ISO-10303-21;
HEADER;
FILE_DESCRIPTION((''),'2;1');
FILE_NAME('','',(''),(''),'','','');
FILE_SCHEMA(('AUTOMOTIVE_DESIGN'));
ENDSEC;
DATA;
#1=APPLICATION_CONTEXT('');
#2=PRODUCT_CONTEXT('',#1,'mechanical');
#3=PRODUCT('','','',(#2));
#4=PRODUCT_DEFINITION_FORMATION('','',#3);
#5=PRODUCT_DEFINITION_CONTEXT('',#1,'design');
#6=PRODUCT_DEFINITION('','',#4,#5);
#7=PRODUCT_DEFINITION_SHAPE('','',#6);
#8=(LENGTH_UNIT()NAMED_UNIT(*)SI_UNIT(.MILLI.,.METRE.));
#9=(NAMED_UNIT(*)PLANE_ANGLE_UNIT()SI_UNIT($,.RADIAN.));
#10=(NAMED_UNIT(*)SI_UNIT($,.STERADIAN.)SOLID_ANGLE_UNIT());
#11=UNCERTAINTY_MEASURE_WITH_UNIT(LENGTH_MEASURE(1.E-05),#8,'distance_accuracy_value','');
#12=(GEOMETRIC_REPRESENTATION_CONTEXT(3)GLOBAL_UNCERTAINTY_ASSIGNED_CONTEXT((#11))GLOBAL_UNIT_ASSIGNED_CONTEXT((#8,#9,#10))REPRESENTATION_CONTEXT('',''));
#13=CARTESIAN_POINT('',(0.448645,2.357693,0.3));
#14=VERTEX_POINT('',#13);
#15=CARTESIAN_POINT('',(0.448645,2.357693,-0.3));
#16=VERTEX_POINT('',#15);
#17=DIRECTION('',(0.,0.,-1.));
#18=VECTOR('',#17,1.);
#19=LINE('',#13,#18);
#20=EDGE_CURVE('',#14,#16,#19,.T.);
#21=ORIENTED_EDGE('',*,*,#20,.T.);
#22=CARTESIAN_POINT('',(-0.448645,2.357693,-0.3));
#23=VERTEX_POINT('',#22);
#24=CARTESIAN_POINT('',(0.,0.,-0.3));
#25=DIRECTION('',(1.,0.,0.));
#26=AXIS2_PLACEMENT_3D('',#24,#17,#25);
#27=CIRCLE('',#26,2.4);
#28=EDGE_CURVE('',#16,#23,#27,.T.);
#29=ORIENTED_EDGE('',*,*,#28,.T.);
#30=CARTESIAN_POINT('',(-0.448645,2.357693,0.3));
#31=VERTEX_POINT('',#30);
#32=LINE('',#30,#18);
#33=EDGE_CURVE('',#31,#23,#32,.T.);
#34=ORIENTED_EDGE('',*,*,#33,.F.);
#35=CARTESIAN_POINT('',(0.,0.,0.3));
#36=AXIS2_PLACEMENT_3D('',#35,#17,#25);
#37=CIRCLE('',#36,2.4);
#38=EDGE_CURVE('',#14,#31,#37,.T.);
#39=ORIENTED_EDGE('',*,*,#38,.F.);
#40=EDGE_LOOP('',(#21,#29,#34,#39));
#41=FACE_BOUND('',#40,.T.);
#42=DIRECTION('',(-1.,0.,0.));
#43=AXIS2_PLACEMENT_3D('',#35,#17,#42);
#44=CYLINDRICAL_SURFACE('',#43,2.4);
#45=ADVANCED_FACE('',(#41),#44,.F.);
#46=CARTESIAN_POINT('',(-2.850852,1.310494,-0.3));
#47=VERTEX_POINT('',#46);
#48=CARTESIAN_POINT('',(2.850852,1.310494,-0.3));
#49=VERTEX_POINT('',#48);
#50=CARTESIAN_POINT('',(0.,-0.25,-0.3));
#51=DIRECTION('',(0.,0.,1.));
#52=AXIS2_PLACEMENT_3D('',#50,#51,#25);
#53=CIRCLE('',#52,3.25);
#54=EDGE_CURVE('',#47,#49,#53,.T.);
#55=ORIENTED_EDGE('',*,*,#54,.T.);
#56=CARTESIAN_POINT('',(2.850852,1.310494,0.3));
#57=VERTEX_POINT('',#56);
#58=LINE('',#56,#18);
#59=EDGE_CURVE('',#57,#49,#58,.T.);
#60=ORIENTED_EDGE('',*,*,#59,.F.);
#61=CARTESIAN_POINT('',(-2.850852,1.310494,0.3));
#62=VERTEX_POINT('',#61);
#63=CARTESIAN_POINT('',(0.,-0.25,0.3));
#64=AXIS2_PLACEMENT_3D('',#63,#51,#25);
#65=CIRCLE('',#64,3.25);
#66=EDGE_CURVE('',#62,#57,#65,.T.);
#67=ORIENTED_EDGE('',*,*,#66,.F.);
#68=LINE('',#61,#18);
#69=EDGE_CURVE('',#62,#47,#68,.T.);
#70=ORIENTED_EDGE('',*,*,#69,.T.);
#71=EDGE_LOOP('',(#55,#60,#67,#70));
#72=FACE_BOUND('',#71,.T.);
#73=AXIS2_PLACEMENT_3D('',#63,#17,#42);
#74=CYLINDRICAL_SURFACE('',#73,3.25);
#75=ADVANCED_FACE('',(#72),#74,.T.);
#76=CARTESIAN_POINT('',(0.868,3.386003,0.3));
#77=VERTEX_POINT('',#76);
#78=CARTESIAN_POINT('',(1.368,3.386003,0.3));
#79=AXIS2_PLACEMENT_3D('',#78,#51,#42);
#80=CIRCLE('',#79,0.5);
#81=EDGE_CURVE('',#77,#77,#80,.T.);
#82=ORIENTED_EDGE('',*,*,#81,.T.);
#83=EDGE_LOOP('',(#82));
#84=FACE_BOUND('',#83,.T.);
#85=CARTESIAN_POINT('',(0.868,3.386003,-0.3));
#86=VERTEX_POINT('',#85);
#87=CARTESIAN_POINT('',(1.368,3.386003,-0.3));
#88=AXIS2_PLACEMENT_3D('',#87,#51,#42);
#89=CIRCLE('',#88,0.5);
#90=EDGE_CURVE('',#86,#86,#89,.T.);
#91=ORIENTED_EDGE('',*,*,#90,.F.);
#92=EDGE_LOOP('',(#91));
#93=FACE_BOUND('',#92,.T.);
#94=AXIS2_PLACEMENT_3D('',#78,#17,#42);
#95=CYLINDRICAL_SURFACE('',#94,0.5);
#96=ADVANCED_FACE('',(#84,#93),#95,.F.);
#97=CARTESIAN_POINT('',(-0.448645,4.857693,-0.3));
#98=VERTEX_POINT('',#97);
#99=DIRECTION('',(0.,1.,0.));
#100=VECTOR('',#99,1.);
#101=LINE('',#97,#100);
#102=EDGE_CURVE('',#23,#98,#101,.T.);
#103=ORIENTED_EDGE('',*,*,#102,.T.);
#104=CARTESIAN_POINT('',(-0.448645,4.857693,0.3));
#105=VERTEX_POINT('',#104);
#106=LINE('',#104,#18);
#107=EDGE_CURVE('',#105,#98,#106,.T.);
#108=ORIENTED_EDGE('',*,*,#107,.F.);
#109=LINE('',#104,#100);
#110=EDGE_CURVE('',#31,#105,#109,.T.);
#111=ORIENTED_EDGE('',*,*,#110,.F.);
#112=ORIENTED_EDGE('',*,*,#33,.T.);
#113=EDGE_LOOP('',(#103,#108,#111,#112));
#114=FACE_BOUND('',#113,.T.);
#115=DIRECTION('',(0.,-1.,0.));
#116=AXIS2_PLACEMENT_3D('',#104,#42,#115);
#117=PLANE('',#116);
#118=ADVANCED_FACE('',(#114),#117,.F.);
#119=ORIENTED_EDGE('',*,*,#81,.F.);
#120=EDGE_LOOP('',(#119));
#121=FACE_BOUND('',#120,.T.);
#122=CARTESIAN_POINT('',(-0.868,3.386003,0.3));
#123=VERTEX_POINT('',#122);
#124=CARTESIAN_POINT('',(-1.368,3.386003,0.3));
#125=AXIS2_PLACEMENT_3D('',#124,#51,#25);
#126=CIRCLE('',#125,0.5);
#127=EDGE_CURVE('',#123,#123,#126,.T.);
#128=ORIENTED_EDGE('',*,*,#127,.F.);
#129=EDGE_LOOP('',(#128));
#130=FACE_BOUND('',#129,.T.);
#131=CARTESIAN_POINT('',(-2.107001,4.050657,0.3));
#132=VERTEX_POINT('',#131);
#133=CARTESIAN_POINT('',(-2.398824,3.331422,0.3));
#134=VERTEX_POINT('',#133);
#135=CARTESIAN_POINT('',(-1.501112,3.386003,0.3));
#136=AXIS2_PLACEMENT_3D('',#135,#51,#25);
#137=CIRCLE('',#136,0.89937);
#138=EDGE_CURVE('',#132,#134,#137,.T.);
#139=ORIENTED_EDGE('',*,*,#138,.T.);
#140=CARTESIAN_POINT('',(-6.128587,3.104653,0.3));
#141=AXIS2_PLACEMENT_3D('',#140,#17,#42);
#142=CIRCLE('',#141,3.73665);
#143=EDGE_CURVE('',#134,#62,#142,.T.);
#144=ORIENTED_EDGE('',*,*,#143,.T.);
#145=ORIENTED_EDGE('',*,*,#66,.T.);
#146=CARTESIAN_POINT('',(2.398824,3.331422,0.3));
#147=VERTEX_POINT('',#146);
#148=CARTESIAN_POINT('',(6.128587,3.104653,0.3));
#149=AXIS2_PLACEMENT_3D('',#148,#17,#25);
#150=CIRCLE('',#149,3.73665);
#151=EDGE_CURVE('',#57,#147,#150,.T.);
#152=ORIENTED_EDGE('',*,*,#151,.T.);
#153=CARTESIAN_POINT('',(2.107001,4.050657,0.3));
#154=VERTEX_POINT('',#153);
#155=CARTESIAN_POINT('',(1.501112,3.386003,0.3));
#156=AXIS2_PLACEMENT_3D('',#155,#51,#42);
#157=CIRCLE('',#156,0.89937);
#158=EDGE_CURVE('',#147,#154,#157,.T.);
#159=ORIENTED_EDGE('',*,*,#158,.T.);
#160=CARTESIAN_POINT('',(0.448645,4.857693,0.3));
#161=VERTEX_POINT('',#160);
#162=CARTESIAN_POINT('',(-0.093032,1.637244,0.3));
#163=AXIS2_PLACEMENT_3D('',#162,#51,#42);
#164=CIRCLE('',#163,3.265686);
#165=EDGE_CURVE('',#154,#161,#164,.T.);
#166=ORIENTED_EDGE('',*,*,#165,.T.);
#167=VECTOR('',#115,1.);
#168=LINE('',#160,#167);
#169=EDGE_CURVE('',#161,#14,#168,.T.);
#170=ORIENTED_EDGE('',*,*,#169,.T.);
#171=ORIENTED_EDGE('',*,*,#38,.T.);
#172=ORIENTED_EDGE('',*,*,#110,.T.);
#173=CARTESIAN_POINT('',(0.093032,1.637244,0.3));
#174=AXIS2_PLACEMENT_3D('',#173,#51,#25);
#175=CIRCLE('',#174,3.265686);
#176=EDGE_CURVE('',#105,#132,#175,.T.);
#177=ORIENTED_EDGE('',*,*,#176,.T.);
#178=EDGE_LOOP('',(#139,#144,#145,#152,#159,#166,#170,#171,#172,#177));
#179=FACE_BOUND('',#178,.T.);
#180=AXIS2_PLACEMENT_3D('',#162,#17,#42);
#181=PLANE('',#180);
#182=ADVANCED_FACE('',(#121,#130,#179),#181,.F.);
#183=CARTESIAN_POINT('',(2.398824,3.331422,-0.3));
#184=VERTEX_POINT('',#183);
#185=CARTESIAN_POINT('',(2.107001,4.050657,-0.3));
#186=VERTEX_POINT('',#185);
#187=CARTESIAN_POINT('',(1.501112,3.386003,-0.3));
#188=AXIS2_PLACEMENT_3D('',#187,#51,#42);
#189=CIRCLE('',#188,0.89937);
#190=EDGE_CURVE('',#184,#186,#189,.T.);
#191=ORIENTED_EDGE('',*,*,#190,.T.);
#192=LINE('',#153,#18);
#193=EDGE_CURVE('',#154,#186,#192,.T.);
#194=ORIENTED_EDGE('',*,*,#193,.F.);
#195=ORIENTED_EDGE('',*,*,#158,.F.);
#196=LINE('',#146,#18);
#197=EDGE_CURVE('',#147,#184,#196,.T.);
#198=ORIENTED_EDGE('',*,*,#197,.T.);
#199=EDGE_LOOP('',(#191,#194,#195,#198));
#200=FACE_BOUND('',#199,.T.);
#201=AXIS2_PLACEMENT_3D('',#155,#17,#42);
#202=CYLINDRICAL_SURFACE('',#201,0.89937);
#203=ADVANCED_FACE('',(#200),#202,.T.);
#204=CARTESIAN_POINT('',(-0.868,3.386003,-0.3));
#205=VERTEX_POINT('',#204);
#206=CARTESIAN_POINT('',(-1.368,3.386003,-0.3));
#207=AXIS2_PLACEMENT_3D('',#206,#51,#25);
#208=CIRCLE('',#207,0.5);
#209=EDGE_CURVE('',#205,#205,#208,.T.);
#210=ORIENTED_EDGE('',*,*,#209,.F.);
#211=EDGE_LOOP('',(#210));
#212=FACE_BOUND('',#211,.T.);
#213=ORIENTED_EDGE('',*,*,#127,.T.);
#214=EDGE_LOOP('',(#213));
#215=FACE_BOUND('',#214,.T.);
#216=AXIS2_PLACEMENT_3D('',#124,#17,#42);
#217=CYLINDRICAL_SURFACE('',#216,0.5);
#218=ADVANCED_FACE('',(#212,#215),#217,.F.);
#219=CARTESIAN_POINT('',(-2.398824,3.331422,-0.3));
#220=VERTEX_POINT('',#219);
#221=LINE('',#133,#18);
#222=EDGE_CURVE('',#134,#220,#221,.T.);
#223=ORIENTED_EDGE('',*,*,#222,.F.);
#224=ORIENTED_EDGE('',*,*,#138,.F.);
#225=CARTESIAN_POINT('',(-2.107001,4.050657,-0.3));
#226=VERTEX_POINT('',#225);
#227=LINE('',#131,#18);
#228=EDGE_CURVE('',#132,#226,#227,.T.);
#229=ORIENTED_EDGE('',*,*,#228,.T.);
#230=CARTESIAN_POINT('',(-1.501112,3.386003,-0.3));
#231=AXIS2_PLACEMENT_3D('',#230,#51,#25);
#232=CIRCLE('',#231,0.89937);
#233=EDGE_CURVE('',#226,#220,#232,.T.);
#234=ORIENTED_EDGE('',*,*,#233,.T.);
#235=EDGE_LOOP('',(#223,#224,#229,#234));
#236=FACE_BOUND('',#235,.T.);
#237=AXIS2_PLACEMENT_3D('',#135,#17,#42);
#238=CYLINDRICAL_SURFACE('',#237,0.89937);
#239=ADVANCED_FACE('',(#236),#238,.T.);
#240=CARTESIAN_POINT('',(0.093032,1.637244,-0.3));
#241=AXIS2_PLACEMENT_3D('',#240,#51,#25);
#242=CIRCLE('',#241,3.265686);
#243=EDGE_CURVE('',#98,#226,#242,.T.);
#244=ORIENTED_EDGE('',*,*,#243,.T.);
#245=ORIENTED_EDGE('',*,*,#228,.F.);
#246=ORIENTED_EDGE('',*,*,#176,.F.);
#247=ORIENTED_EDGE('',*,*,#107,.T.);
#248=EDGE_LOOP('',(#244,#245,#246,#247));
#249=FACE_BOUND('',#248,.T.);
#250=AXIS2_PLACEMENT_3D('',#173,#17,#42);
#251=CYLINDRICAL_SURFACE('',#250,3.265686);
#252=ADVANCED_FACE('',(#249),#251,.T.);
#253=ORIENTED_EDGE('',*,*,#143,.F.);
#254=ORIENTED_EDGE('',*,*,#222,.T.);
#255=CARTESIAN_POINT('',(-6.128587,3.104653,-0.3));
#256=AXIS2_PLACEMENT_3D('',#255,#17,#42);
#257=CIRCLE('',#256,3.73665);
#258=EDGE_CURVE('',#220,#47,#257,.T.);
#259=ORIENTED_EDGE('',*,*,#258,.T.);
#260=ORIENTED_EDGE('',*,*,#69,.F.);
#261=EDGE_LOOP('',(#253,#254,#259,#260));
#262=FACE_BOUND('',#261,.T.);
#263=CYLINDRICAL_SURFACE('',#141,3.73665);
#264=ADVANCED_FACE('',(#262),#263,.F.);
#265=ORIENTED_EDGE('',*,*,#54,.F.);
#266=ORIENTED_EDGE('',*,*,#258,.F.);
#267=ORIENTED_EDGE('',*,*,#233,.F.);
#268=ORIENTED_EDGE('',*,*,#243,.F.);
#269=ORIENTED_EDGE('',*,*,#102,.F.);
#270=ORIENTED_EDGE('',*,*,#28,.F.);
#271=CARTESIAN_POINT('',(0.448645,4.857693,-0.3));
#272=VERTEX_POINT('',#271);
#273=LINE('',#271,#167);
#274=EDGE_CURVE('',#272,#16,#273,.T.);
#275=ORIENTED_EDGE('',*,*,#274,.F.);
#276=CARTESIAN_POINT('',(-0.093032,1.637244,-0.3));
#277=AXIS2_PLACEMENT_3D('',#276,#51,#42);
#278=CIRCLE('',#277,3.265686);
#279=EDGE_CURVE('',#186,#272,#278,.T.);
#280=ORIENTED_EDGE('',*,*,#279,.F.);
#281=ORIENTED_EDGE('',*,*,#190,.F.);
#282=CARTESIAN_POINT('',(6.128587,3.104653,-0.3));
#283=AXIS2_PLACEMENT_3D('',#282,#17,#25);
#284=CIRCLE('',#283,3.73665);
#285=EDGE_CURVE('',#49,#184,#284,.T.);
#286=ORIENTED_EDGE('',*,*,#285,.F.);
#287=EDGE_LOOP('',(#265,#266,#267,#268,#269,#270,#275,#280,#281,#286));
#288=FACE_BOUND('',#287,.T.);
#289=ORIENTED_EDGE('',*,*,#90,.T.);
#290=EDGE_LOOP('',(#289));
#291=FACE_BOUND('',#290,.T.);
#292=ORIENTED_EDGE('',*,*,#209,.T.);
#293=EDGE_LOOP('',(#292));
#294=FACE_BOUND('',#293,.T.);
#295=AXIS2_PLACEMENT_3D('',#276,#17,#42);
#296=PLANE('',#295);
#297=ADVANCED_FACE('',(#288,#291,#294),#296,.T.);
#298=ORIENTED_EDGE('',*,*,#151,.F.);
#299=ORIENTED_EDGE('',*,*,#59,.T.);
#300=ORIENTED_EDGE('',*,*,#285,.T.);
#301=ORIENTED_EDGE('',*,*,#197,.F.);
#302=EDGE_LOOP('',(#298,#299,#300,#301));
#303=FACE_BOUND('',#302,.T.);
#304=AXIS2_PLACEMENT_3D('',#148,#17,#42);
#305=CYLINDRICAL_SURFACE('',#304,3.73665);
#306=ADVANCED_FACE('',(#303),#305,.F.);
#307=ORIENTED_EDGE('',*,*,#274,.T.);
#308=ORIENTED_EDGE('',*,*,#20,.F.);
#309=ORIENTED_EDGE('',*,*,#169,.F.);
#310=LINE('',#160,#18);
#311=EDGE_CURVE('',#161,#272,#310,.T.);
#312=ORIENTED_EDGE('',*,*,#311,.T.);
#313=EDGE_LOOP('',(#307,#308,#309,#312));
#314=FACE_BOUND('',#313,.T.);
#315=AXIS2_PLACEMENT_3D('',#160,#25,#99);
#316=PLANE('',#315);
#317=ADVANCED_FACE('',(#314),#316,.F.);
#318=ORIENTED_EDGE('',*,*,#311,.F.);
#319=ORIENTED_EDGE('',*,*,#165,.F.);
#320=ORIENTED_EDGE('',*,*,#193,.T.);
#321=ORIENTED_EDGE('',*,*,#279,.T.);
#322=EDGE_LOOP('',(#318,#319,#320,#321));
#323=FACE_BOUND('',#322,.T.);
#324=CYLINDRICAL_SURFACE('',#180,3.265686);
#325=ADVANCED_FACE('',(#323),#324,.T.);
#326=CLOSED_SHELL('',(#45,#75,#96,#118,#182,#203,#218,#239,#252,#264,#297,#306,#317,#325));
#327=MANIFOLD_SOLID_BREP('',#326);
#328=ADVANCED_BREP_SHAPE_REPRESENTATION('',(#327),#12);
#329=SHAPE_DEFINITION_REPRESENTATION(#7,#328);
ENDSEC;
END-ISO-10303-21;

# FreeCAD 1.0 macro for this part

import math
import FreeCAD as App
import Part
import Sketcher

V = App.Vector

doc = App.newDocument("Part")
body = doc.addObject("PartDesign::Body", "Body")

sketch1 = body.newObject("Sketcher::SketchObject", "Sketch")
sketch1.AttachmentSupport = (doc.getObject("XY_Plane"), [""])
sketch1.MapMode = "FlatFace"
sketch1.addGeometry([
    Part.LineSegment(V(0.448645, 4.857693, 0), V(0.448645, 2.357693, 0)),
    Part.ArcOfCircle(Part.Circle(V(0, 0, 0), V(0, 0, 1), 2.4), math.radians(100.773988), math.radians(439.226012)),
    Part.LineSegment(V(-0.448645, 2.357693, 0), V(-0.448645, 4.857693, 0)),
    Part.ArcOfCircle(Part.Circle(V(0.093032, 1.637244, 0), V(0, 0, 1), 3.265686), math.radians(99.547732), math.radians(132.351866)),
    Part.ArcOfCircle(Part.Circle(V(-1.501112, 3.386003, 0), V(0, 0, 1), 0.89937), math.radians(132.351866), math.radians(183.479288)),
    Part.ArcOfCircle(Part.Circle(V(-6.128587, 3.104653, 0), V(0, 0, 1), 3.73665), math.radians(-28.695325), math.radians(3.479288)),
    Part.ArcOfCircle(Part.Circle(V(0, -0.25, 0), V(0, 0, 1), 3.25), math.radians(151.304675), math.radians(388.695325)),
    Part.ArcOfCircle(Part.Circle(V(6.128587, 3.104653, 0), V(0, 0, 1), 3.73665), math.radians(176.520712), math.radians(208.695325)),
    Part.ArcOfCircle(Part.Circle(V(1.501112, 3.386003, 0), V(0, 0, 1), 0.89937), math.radians(-3.479288), math.radians(47.648134)),
    Part.ArcOfCircle(Part.Circle(V(-0.093032, 1.637244, 0), V(0, 0, 1), 3.265686), math.radians(47.648134), math.radians(80.452268)),
    Part.Circle(V(-1.368, 3.386003, 0), V(0, 0, 1), 0.5),
    Part.Circle(V(1.368, 3.386003, 0), V(0, 0, 1), 0.5),
], False)
sketch1.addConstraint([
    Sketcher.Constraint("Coincident", 0, 2, 1, 2),
    Sketcher.Constraint("Coincident", 1, 1, 2, 1),
    Sketcher.Constraint("Coincident", 2, 2, 3, 1),
    Sketcher.Constraint("Tangent", 3, 2, 4, 1),
    Sketcher.Constraint("Tangent", 4, 2, 5, 2),
    Sketcher.Constraint("Tangent", 5, 1, 6, 1),
    Sketcher.Constraint("Tangent", 6, 2, 7, 2),
    Sketcher.Constraint("Tangent", 7, 1, 8, 1),
    Sketcher.Constraint("Tangent", 8, 2, 9, 1),
    Sketcher.Constraint("Coincident", 9, 2, 0, 1),
    Sketcher.Constraint("Vertical", 0),
    Sketcher.Constraint("Vertical", 2),
    Sketcher.Constraint("Coincident", 1, 3, -1, 1),
    Sketcher.Constraint("Equal", 5, 7),
    Sketcher.Constraint("Equal", 4, 8),
    Sketcher.Constraint("Equal", 3, 9),
    Sketcher.Constraint("Equal", 10, 11),
    Sketcher.Constraint("Symmetric", 5, 3, 7, 3, -2),
    Sketcher.Constraint("Symmetric", 3, 3, 9, 3, -2),
    Sketcher.Constraint("Symmetric", 10, 3, 11, 3, -2),
    Sketcher.Constraint("Horizontal", 8, 3, 10, 3),
    Sketcher.Constraint("Horizontal", 0, 2, 1, 1),
    Sketcher.Constraint("Diameter", 10, 1.0),
    Sketcher.Constraint("Radius", 1, 2.4),
    Sketcher.Constraint("Radius", 6, 3.25),
    Sketcher.Constraint("DistanceY", 0, 2, 0, 1, 2.5),
    Sketcher.Constraint("DistanceY", 6, 3, -1, 1, 0.25),
    Sketcher.Constraint("Radius", 4, 0.89937),
    Sketcher.Constraint("Radius", 5, 3.73665),
    Sketcher.Constraint("DistanceX", 10, 3, -1, 1, 1.368),
    Sketcher.Constraint("DistanceX", 3, 2, -1, 1, 2.107001),
    Sketcher.Constraint("Radius", 3, 3.265686),
    Sketcher.Constraint("DistanceX", 4, 3, 7, 3, 7.629699),
    Sketcher.Constraint("DistanceY", 5, 1, 1, 1, 1.0472),
])
pad1 = body.newObject("PartDesign::Pad", "Pad")
pad1.Profile = sketch1
pad1.Length = 0.6
pad1.Midplane = True

doc.recompute()
